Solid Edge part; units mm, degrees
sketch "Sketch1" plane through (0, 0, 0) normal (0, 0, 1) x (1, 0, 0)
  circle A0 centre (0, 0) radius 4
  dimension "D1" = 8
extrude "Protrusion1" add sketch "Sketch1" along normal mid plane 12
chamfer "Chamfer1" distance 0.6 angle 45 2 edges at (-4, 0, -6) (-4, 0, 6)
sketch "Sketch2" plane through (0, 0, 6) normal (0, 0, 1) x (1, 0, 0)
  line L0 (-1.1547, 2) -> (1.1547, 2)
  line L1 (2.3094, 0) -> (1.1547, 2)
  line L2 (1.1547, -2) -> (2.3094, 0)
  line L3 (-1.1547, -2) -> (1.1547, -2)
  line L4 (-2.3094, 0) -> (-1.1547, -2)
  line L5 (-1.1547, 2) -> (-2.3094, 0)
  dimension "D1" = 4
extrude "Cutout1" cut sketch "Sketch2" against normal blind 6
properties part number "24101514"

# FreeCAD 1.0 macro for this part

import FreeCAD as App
import Part
import Sketcher
from FreeCAD import Vector
Q = App.Units.Quantity


def edges_at(feature, points):
    """Names of the edges that pass closest to the given points."""
    edges = feature.Shape.Edges
    near = lambda p: min(range(len(edges)), key=lambda i: edges[i].distToShape(Part.Vertex(*p))[0])
    return sorted({f"Edge{near(p) + 1}" for p in points})

doc = App.newDocument("Part")
body = doc.addObject("PartDesign::Body", "Body")

# Sketch on XY plane
sketch1 = body.newObject("Sketcher::SketchObject", "Sketch")
sketch1.AttachmentSupport = (doc.getObject("XY_Plane"), [""])
sketch1.MapMode = "FlatFace"
sketch1.addGeometry(Part.Circle(Vector(0, 0, 0), Vector(0, 0, 1), 4), False)
sketch1.addConstraint(Sketcher.Constraint("Coincident", 0, 3, -1, 1))
sketch1.addConstraint(Sketcher.Constraint("Diameter", 0, Q("8 mm")))
pad1 = body.newObject("PartDesign::Pad", "Pad")
pad1.Profile = sketch1
pad1.Length = 12
pad1.Midplane = True
doc.recompute()

chamfer = body.newObject("PartDesign::Chamfer", "Chamfer")
chamfer.Base = (pad1, edges_at(pad1, [(-4, 0, -6), (-4, 0, 6)]))
chamfer.Size = 0.6

# Sketch on XY plane
sketch2 = body.newObject("Sketcher::SketchObject", "Sketch001")
sketch2.AttachmentSupport = (doc.getObject("XY_Plane"), [""])
sketch2.MapMode = "FlatFace"
sketch2.AttachmentOffset = App.Placement(Vector(0, 0, 6), App.Rotation())
sketch2.addGeometry(Part.LineSegment(Vector(1.2, 2, 0), Vector(-1.2, 2, 0)), False)
sketch2.addGeometry(Part.LineSegment(Vector(-1.2, 2, 0), Vector(-2.3, 0, 0)), False)
sketch2.addGeometry(Part.LineSegment(Vector(-2.3, 0, 0), Vector(-1.2, -2, 0)), False)
sketch2.addGeometry(Part.LineSegment(Vector(-1.2, -2, 0), Vector(1.2, -2, 0)), False)
sketch2.addGeometry(Part.LineSegment(Vector(1.2, -2, 0), Vector(2.3, 0, 0)), False)
sketch2.addGeometry(Part.LineSegment(Vector(2.3, 0, 0), Vector(1.2, 2, 0)), False)
sketch2.addConstraint(Sketcher.Constraint("Coincident", 0, 2, 1, 1))
sketch2.addConstraint(Sketcher.Constraint("Coincident", 1, 2, 2, 1))
sketch2.addConstraint(Sketcher.Constraint("Coincident", 2, 2, 3, 1))
sketch2.addConstraint(Sketcher.Constraint("Coincident", 3, 2, 4, 1))
sketch2.addConstraint(Sketcher.Constraint("Coincident", 4, 2, 5, 1))
sketch2.addConstraint(Sketcher.Constraint("Coincident", 5, 2, 0, 1))
sketch2.addConstraint(Sketcher.Constraint("Horizontal", 0))
sketch2.addConstraint(Sketcher.Constraint("Horizontal", 3))
sketch2.addConstraint(Sketcher.Constraint("Symmetric", 0, 2, 3, 2, -1, 1))
sketch2.addConstraint(Sketcher.Constraint("Symmetric", 1, 2, 4, 2, -1, 1))
sketch2.addConstraint(Sketcher.Constraint("PointOnObject", 1, 2, -1))
sketch2.addConstraint(Sketcher.Constraint("Parallel", 2, 5))
sketch2.addConstraint(Sketcher.Constraint("Vertical", 0, 2, 2, 2))
sketch2.addConstraint(Sketcher.Constraint("Angle", 1, Q("-120 deg")))
sketch2.addConstraint(Sketcher.Constraint("DistanceY", -1, 1, 0, 2, Q("2 mm")))
sketch2.addConstraint(Sketcher.Constraint("DistanceX", 0, 2, 0, 1, Q("2.3094 mm")))
pocket1 = body.newObject("PartDesign::Pocket", "Pocket")
pocket1.Profile = sketch2
pocket1.Length = 6

doc.recompute()
